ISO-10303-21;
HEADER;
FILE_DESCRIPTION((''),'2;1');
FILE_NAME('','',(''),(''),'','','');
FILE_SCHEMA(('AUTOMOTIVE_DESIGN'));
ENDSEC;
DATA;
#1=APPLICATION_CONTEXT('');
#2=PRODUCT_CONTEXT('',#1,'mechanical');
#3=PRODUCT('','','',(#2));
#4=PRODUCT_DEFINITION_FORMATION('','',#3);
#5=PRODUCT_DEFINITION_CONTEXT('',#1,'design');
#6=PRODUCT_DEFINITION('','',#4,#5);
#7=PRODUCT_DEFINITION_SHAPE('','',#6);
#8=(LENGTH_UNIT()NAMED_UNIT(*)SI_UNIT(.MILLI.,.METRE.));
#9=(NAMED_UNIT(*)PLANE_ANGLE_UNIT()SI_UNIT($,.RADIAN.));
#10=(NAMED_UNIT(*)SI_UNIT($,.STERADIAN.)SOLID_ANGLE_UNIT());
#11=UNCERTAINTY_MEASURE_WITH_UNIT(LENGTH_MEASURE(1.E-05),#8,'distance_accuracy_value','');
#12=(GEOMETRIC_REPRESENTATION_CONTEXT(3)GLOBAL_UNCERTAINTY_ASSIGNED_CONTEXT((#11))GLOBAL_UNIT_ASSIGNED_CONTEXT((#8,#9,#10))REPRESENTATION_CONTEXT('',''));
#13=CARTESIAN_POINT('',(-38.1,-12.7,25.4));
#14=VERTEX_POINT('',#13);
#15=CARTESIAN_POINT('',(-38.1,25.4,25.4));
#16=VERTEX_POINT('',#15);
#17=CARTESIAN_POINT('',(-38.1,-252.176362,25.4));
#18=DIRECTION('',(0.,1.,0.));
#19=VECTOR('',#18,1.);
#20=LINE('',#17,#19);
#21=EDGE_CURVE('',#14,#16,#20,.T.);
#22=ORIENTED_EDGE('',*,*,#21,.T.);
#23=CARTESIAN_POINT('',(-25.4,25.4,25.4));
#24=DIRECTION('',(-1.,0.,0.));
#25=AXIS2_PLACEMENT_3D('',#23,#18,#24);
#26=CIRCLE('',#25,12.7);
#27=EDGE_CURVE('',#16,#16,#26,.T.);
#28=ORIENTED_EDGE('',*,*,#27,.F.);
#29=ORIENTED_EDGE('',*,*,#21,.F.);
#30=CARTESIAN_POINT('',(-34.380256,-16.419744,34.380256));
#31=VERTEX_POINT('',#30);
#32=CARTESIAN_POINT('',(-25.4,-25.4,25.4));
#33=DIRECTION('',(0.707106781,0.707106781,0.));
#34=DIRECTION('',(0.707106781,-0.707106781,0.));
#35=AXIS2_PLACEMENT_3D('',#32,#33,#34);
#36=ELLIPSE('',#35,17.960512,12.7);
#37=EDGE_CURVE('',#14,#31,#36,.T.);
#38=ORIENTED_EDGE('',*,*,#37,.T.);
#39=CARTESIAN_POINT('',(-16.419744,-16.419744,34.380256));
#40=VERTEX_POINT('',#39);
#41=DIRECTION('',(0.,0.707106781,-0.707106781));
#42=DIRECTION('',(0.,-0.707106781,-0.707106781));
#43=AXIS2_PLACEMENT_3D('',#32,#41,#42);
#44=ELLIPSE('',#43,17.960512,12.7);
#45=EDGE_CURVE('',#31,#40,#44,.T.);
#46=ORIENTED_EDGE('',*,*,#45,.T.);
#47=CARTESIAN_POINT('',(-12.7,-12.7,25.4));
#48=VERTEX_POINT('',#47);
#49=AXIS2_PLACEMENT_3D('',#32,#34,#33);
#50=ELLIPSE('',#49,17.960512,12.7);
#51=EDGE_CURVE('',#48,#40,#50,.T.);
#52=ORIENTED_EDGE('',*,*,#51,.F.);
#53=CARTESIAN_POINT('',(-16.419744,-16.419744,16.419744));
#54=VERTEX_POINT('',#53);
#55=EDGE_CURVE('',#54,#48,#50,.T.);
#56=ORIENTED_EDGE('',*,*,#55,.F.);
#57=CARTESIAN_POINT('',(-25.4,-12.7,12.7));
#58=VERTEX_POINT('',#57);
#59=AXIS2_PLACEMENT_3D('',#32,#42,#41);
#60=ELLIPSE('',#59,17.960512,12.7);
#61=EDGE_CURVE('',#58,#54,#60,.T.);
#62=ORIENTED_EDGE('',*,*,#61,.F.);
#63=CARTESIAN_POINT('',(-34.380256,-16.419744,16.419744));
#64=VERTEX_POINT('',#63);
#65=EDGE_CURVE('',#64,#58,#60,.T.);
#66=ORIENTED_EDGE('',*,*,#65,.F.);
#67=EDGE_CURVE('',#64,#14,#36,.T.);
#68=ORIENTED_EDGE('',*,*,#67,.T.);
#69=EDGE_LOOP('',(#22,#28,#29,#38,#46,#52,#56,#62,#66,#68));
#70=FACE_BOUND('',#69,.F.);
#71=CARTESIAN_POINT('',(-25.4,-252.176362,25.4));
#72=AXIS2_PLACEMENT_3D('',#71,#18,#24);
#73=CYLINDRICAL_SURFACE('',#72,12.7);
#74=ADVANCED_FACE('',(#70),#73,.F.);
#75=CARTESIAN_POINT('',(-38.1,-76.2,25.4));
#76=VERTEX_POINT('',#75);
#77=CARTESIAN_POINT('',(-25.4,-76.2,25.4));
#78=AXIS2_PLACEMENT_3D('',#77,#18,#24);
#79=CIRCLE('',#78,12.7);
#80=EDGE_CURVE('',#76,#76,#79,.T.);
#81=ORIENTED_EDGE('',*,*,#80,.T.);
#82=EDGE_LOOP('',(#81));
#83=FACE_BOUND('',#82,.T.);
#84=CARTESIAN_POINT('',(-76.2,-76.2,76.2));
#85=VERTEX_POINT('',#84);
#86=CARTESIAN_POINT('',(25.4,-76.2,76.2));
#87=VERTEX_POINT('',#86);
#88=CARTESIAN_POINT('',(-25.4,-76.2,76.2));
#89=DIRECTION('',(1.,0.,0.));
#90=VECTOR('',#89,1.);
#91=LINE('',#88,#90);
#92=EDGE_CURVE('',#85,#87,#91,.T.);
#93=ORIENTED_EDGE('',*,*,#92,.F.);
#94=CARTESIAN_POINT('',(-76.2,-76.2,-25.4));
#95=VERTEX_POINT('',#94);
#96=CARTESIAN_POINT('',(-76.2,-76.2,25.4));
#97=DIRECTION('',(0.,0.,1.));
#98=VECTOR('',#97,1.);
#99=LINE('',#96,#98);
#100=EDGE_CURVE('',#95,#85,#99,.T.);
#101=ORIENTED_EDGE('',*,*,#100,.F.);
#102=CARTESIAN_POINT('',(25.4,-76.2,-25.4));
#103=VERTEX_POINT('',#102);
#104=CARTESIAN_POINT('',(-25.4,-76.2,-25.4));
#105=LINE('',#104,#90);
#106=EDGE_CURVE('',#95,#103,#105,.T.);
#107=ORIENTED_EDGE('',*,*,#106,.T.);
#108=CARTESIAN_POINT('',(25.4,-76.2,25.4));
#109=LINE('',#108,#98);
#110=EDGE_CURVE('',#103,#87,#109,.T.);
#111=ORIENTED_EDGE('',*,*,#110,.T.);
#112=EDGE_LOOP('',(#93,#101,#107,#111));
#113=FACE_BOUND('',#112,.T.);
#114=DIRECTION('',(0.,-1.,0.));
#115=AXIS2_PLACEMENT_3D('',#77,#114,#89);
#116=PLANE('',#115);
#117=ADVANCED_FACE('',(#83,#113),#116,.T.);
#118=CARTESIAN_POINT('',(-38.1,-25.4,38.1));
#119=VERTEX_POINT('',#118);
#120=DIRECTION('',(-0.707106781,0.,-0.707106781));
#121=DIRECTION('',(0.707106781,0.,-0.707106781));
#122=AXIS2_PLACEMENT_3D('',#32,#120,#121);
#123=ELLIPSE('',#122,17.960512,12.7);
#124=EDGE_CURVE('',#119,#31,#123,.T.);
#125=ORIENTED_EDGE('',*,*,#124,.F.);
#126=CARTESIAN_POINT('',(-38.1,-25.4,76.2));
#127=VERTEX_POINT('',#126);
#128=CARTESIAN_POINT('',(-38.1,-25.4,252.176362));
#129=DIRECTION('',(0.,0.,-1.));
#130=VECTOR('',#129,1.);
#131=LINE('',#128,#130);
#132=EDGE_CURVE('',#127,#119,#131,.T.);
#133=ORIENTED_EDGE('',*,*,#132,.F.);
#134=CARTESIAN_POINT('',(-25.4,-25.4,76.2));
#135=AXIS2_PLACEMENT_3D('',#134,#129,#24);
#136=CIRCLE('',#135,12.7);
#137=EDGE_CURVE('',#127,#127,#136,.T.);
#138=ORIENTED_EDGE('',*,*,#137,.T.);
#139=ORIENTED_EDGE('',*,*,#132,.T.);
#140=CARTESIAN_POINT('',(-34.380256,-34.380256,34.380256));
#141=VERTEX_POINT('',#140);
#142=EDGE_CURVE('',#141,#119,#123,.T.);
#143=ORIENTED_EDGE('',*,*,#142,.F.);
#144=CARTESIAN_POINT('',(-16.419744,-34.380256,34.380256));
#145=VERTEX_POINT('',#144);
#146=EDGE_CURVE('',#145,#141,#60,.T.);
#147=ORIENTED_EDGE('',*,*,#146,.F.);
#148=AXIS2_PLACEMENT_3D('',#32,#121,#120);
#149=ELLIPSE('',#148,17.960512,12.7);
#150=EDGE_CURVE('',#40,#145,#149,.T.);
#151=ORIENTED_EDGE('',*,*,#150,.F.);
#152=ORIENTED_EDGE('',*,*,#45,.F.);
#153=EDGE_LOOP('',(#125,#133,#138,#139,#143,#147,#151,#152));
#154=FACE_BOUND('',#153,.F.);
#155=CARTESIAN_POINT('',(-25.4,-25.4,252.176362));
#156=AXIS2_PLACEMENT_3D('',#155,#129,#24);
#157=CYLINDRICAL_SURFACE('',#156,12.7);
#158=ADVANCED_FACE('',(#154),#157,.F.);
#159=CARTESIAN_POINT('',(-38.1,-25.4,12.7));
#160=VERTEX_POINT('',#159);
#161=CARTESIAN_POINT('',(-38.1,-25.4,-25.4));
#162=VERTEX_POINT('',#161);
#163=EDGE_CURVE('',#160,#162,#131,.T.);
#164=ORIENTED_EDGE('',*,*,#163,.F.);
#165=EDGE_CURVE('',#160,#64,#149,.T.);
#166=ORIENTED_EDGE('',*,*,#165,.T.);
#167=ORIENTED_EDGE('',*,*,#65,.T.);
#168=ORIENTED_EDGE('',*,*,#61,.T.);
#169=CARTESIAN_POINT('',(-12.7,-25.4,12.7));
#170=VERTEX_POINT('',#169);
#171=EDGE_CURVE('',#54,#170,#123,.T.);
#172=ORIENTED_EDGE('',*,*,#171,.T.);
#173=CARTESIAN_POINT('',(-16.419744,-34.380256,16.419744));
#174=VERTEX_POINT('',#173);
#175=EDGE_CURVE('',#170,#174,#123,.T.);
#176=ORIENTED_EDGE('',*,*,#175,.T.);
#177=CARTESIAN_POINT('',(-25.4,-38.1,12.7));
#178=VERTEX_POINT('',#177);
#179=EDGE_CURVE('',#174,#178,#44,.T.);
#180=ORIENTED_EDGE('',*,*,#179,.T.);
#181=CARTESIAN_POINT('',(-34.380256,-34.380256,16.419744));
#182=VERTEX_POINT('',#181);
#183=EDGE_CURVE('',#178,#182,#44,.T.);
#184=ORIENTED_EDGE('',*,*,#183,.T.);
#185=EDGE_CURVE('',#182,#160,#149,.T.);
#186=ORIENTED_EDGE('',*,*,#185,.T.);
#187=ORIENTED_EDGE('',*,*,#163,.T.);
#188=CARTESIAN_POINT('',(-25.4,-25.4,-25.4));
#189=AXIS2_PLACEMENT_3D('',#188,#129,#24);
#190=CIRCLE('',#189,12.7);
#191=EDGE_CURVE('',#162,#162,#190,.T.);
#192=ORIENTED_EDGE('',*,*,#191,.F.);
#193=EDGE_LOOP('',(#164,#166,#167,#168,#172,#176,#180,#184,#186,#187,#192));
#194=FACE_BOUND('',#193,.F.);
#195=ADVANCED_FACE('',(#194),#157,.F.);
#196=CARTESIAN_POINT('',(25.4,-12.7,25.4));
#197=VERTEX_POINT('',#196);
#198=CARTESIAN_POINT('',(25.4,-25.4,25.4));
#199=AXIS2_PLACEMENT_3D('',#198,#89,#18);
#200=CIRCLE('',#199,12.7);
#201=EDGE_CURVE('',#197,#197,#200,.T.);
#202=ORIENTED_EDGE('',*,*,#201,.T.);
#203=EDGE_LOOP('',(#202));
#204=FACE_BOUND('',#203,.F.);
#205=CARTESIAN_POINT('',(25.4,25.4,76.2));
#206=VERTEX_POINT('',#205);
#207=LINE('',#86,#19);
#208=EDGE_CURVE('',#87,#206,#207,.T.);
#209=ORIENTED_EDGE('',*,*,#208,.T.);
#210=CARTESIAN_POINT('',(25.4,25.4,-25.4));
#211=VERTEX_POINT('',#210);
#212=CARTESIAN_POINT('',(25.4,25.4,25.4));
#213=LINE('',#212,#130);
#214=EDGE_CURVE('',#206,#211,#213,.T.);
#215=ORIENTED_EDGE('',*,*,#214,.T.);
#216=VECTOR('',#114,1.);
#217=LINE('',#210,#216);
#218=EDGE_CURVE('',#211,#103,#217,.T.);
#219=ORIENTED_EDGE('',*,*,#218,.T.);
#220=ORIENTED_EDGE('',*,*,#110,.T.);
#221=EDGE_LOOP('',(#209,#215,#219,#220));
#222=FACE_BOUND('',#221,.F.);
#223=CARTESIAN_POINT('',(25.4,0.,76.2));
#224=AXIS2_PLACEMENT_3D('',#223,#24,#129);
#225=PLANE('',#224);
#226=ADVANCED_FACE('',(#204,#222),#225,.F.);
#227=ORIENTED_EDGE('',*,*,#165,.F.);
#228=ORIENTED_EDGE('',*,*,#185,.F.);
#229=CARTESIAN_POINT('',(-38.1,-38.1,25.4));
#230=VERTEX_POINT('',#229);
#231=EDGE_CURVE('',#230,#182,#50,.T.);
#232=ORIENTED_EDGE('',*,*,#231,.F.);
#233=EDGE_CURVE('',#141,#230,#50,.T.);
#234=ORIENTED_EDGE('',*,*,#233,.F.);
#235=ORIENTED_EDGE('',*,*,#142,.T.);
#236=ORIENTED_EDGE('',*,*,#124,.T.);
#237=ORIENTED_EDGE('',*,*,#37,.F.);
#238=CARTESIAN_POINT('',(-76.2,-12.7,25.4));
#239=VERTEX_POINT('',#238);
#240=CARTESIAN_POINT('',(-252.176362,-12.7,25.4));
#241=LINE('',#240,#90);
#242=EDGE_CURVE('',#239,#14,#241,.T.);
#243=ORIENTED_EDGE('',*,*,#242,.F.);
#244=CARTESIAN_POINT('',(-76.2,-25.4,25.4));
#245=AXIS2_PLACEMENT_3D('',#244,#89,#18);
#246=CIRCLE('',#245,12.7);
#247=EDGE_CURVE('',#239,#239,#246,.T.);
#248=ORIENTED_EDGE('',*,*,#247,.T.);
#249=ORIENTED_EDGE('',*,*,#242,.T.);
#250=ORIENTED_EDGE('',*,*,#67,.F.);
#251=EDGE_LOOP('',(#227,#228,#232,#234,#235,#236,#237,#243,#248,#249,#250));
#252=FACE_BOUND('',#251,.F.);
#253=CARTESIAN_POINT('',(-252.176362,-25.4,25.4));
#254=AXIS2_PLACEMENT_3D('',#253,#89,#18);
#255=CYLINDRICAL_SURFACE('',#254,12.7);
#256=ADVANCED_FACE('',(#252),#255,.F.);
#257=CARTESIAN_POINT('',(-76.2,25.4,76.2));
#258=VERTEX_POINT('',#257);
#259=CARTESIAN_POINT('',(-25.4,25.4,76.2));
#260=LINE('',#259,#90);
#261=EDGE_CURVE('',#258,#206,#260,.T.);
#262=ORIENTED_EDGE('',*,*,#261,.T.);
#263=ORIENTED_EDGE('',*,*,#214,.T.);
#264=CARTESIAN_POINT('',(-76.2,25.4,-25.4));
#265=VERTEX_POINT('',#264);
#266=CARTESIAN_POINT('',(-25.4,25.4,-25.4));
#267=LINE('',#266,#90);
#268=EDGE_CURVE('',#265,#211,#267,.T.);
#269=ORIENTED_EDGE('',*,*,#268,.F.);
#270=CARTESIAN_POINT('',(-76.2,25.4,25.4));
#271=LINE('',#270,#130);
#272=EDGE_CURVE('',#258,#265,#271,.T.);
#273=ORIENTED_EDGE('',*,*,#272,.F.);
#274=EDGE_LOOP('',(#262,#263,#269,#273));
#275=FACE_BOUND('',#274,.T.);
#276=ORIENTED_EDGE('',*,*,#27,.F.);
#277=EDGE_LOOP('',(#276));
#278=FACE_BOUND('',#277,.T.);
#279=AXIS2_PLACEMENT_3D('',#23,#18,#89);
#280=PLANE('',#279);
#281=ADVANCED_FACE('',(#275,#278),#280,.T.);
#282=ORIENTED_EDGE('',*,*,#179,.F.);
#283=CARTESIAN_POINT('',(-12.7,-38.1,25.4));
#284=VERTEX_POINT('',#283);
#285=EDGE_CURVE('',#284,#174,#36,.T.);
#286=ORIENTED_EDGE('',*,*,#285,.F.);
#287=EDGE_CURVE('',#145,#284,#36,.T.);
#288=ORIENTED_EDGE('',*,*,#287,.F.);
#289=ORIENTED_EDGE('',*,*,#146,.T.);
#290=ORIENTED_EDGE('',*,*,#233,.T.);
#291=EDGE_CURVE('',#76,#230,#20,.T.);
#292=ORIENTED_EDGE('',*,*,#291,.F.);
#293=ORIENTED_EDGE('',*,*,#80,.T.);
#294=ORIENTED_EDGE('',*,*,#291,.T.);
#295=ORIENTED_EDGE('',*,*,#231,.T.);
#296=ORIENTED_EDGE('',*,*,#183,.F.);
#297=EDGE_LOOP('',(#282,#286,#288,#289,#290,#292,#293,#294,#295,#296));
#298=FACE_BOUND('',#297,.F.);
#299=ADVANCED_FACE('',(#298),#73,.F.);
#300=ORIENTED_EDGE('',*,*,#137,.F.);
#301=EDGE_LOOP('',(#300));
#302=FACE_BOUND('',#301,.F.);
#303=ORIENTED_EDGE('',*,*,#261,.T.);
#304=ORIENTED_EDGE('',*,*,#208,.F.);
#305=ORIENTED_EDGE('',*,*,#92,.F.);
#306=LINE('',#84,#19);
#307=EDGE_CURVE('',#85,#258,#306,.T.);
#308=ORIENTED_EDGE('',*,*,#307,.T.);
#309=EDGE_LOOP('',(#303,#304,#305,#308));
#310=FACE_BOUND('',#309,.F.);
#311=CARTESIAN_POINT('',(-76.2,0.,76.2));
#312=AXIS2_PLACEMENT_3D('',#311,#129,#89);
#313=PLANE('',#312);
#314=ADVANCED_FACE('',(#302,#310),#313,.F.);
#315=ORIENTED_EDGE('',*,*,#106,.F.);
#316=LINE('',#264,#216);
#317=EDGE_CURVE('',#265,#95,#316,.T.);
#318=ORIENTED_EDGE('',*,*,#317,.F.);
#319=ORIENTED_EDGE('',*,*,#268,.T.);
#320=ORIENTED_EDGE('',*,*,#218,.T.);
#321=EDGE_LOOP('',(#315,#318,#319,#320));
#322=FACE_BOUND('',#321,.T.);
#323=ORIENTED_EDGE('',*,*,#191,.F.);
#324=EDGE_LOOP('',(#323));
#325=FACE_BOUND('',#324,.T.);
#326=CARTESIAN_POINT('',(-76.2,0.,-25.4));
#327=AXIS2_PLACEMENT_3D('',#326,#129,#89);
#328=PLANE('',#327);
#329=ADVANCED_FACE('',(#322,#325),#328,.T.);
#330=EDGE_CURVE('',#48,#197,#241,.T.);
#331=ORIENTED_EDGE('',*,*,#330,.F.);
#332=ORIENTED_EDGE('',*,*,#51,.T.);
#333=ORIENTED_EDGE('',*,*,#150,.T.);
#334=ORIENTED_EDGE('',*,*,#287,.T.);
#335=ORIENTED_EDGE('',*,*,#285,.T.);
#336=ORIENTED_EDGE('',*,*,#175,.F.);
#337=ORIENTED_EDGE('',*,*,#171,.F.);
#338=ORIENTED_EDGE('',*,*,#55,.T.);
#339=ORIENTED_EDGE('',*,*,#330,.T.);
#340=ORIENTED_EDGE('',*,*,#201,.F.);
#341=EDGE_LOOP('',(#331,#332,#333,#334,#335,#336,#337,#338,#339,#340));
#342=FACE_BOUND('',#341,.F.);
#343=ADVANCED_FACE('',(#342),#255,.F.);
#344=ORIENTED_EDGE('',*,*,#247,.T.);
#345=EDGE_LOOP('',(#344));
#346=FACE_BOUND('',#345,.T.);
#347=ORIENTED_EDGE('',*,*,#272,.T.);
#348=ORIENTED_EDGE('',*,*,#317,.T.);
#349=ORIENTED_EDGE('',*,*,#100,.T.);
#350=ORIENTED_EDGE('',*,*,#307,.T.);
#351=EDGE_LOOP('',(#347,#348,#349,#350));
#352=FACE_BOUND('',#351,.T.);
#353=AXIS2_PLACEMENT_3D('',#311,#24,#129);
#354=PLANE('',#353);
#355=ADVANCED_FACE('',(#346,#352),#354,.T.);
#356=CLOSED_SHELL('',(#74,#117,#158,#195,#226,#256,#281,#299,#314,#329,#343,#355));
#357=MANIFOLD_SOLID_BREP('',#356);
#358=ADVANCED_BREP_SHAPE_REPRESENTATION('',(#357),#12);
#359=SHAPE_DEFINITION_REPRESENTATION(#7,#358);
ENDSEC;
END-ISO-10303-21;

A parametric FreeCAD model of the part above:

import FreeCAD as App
import Part
import Sketcher
Q = App.Units.Quantity


def add_polygon(sketch, points):
    """Adds a closed chain of lines whose ends are joined by coincident constraints."""
    first, n = sketch.GeometryCount, len(points)
    for a, b in zip(points, points[1:] + points[:1]):
        sketch.addGeometry(Part.LineSegment(App.Vector(*a, 0), App.Vector(*b, 0)), False)
    for i in range(n):
        sketch.addConstraint(Sketcher.Constraint("Coincident", first + i, 2, first + (i + 1) % n, 1))

doc = App.newDocument("Part")
body = doc.addObject("PartDesign::Body", "Body")

# Sketch on XZ plane
sketch1 = doc.addObject("Sketcher::SketchObject", "Sketch")
body.addObject(sketch1)
sketch1.AttachmentSupport = (doc.XZ_Plane, [""])
sketch1.MapMode = "FlatFace"
add_polygon(sketch1, [(-50.8, 50.8), (-50.8, 0), (0, 0), (0, 50.8)])  # lines 0-3
sketch1.addConstraint([
    Sketcher.Constraint("Vertical", 0),
    Sketcher.Constraint("Horizontal", 1),
    Sketcher.Constraint("Vertical", 2),
    Sketcher.Constraint("Horizontal", 3),
    Sketcher.Constraint("Coincident", 1, 2, -1, 1),
    Sketcher.Constraint("Equal", 3, 0),
    Sketcher.Constraint("DistanceX", 1, 1, 1, 2, Q("2 in")),
])
pad1 = doc.addObject("PartDesign::Pad", "Pad")
body.addObject(pad1)
pad1.Profile = sketch1
pad1.Length = Q("2 in")

# Sketch on XZ plane
sketch2 = doc.addObject("Sketcher::SketchObject", "Sketch001")
body.addObject(sketch2)
sketch2.AttachmentSupport = (doc.XZ_Plane, [""])
sketch2.MapMode = "FlatFace"
add_polygon(sketch2, [(-76.2, 76.2), (-76.2, -25.4), (25.4, -25.4), (25.4, 76.2)])  # lines 0-3
sketch2.addConstraint([
    Sketcher.Constraint("Vertical", 0),
    Sketcher.Constraint("Horizontal", 1),
    Sketcher.Constraint("Vertical", 2),
    Sketcher.Constraint("Horizontal", 3),
    Sketcher.Constraint("Equal", 3, 0),
    Sketcher.Constraint("DistanceX", 1, 1, 1, 2, Q("4 in")),
    Sketcher.Constraint("DistanceX", 0, 2, -1, 1, Q("3 in")),
    Sketcher.Constraint("DistanceY", 0, 2, -1, 1, Q("1 in")),
])
pad2 = doc.addObject("PartDesign::Pad", "Pad001")
body.addObject(pad2)
pad2.Profile = sketch2
pad2.Length = Q("3 in")

# Sketch on XZ plane
sketch3 = doc.addObject("Sketcher::SketchObject", "Sketch002")
body.addObject(sketch3)
sketch3.AttachmentSupport = (doc.XZ_Plane, [""])
sketch3.MapMode = "FlatFace"
add_polygon(sketch3, [(-76.2, -25.4), (-76.2, 76.2), (25.4, 76.2), (25.4, -25.4)])  # lines 0-3
sketch3.addConstraint([
    Sketcher.Constraint("Vertical", 0),
    Sketcher.Constraint("Horizontal", 1),
    Sketcher.Constraint("Vertical", 2),
    Sketcher.Constraint("Horizontal", 3),
    Sketcher.Constraint("Equal", 3, 0),
    Sketcher.Constraint("DistanceX", 1, 1, 1, 2, Q("4 in")),
    Sketcher.Constraint("DistanceX", 0, 2, -1, 1, Q("3 in")),
    Sketcher.Constraint("DistanceY", -1, 1, 0, 2, Q("3 in")),
])
pad3 = doc.addObject("PartDesign::Pad", "Pad002")
body.addObject(pad3)
pad3.Profile = sketch3
pad3.Length = Q("1 in")
pad3.Reversed = True

# Sketch on XY plane
sketch4 = doc.addObject("Sketcher::SketchObject", "Sketch003")
body.addObject(sketch4)
sketch4.AttachmentSupport = (doc.XY_Plane, [""])
sketch4.MapMode = "FlatFace"
sketch4.AttachmentOffset = App.Placement(App.Vector(0, 0, 3 * 25.4), App.Rotation())
sketch4.addGeometry(Part.Circle(App.Vector(-25.4, -25.4, 0), App.Vector(0, 0, 1), 12.7), False)
sketch4.addConstraint([
    Sketcher.Constraint("Diameter", 0, Q("1 in")),
    Sketcher.Constraint("DistanceX", 0, 3, -1, 1, Q("1 in")),
    Sketcher.Constraint("DistanceY", 0, 3, -1, 1, Q("1 in")),
])
doc.recompute()
hole = doc.addObject("PartDesign::Hole", "Hole")
body.addObject(hole)
hole.Profile = sketch4
hole.ThreadType = "None"
hole.Diameter = Q("1 in")
hole.DepthType = "ThroughAll"

# Sketch on YZ plane
sketch5 = doc.addObject("Sketcher::SketchObject", "Sketch004")
body.addObject(sketch5)
sketch5.AttachmentSupport = (doc.YZ_Plane, [""])
sketch5.MapMode = "FlatFace"
sketch5.AttachmentOffset = App.Placement(App.Vector(0, 0, -3 * 25.4), App.Rotation())
sketch5.addGeometry(Part.Circle(App.Vector(-25.4, 25.4, 0), App.Vector(0, 0, 1), 12.7), False)
sketch5.addConstraint([
    Sketcher.Constraint("Diameter", 0, Q("1 in")),
    Sketcher.Constraint("DistanceX", 0, 3, -1, 1, Q("1 in")),
    Sketcher.Constraint("DistanceY", -1, 1, 0, 3, Q("1 in")),
])
doc.recompute()
hole2 = doc.addObject("PartDesign::Hole", "Hole001")
body.addObject(hole2)
hole2.Profile = sketch5
hole2.ThreadType = "None"
hole2.Diameter = Q("1 in")
hole2.DepthType = "ThroughAll"
hole2.Reversed = True

# Sketch on XZ plane
sketch6 = doc.addObject("Sketcher::SketchObject", "Sketch005")
body.addObject(sketch6)
sketch6.AttachmentSupport = (doc.XZ_Plane, [""])
sketch6.MapMode = "FlatFace"
sketch6.AttachmentOffset = App.Placement(App.Vector(0, 0, 3 * 25.4), App.Rotation())
sketch6.addGeometry(Part.Circle(App.Vector(-25.4, 25.4, 0), App.Vector(0, 0, 1), 12.7), False)
sketch6.addConstraint([
    Sketcher.Constraint("Diameter", 0, Q("1 in")),
    Sketcher.Constraint("DistanceX", 0, 3, -1, 1, Q("1 in")),
    Sketcher.Constraint("DistanceY", -1, 1, 0, 3, Q("1 in")),
])
doc.recompute()
hole3 = doc.addObject("PartDesign::Hole", "Hole002")
body.addObject(hole3)
hole3.Profile = sketch6
hole3.ThreadType = "None"
hole3.Diameter = Q("1 in")
hole3.DepthType = "ThroughAll"

doc.recompute()
